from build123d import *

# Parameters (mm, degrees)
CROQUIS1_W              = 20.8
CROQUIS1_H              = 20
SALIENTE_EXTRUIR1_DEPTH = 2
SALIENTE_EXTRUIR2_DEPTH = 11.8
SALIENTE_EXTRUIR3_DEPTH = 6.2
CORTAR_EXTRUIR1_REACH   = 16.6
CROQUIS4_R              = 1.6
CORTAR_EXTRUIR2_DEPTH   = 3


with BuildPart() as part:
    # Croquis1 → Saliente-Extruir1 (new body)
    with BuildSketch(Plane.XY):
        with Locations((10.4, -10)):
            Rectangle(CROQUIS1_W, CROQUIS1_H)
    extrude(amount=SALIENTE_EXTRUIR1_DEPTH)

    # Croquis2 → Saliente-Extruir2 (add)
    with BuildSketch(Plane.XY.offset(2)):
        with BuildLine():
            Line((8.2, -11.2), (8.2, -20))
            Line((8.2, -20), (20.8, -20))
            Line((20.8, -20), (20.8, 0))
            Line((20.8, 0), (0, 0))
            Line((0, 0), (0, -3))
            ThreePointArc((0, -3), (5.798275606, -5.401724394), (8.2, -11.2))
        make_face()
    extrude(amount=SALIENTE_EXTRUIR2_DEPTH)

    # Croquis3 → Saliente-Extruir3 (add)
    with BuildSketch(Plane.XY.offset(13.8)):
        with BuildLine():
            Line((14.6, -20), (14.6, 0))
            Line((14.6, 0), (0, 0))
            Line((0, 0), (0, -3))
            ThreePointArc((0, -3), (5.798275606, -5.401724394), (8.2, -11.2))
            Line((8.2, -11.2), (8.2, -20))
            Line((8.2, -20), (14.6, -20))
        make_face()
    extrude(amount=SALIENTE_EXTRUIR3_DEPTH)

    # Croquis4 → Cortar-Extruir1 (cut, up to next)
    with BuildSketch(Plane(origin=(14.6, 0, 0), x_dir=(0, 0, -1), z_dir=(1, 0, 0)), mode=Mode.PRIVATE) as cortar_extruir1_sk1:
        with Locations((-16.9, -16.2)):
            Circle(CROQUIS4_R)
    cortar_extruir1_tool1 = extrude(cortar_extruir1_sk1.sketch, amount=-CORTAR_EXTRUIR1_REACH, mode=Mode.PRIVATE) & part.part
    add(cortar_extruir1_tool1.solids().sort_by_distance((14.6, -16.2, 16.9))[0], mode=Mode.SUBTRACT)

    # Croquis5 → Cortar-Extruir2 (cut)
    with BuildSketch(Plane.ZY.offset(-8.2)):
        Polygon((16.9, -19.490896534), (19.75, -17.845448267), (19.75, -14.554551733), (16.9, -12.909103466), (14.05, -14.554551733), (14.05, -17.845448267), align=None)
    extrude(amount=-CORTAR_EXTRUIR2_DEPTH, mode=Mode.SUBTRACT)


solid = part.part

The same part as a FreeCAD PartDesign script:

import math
import FreeCAD as App
import Part
import Sketcher
Q = App.Units.Quantity


def add_polygon(sketch, points):
    """Adds a closed chain of lines whose ends are joined by coincident constraints."""
    first, n = sketch.GeometryCount, len(points)
    for a, b in zip(points, points[1:] + points[:1]):
        sketch.addGeometry(Part.LineSegment(App.Vector(*a, 0), App.Vector(*b, 0)), False)
    for i in range(n):
        sketch.addConstraint(Sketcher.Constraint("Coincident", first + i, 2, first + (i + 1) % n, 1))

doc = App.newDocument("Part")
body = doc.addObject("PartDesign::Body", "Body")

# Sketch on XY plane
sketch1 = body.newObject("Sketcher::SketchObject", "Sketch")
sketch1.AttachmentSupport = (doc.getObject("XY_Plane"), [""])
sketch1.MapMode = "FlatFace"
add_polygon(sketch1, [(0, 0), (0, -20), (20.8, -20), (20.8, 0)])  # lines 0-3
sketch1.addConstraint([
    Sketcher.Constraint("Vertical", 0),
    Sketcher.Constraint("Horizontal", 1),
    Sketcher.Constraint("Vertical", 2),
    Sketcher.Constraint("Horizontal", 3),
    Sketcher.Constraint("Coincident", 3, 2, -1, 1),
    Sketcher.Constraint("DistanceY", 0, 2, 0, 1, Q("20 mm")),
    Sketcher.Constraint("DistanceX", 1, 1, 1, 2, Q("20.8 mm")),
])
pad1 = body.newObject("PartDesign::Pad", "Pad")
pad1.Profile = sketch1
pad1.Length = 2

# Sketch on XY plane
sketch2 = body.newObject("Sketcher::SketchObject", "Sketch001")
sketch2.AttachmentSupport = (doc.getObject("XY_Plane"), [""])
sketch2.MapMode = "FlatFace"
sketch2.AttachmentOffset = App.Placement(App.Vector(0, 0, 2), App.Rotation())
sketch2.addGeometry([
    Part.LineSegment(App.Vector(8.2, -11.2, 0), App.Vector(8.2, -20, 0)),  # 0
    Part.LineSegment(App.Vector(8.2, -20, 0), App.Vector(20.8, -20, 0)),  # 1
    Part.LineSegment(App.Vector(20.8, -20, 0), App.Vector(20.8, 0, 0)),  # 2
    Part.LineSegment(App.Vector(20.8, 0, 0), App.Vector(0, 0, 0)),  # 3
    Part.LineSegment(App.Vector(0, 0, 0), App.Vector(0, -3, 0)),  # 4
    Part.ArcOfCircle(Part.Circle(App.Vector(0, -11.2, 0), App.Vector(0, 0, 1), 8.2), math.radians(0), math.radians(90)),  # 5
], False)
sketch2.addConstraint([
    Sketcher.Constraint("Coincident", 0, 2, 1, 1),
    Sketcher.Constraint("Coincident", 1, 2, 2, 1),
    Sketcher.Constraint("Coincident", 2, 2, 3, 1),
    Sketcher.Constraint("Coincident", 3, 2, 4, 1),
    Sketcher.Constraint("Coincident", 4, 2, 5, 2),
    Sketcher.Constraint("Tangent", 5, 1, 0, 1),
    Sketcher.Constraint("Vertical", 0),
    Sketcher.Constraint("Horizontal", 1),
    Sketcher.Constraint("Vertical", 2),
    Sketcher.Constraint("Horizontal", 3),
    Sketcher.Constraint("Vertical", 4),
    Sketcher.Constraint("Coincident", 3, 2, -1, 1),
    Sketcher.Constraint("PointOnObject", 5, 3, -2),
    Sketcher.Constraint("Radius", 5, Q("8.2 mm")),
    Sketcher.Constraint("DistanceY", 2, 1, 2, 2, Q("20 mm")),
    Sketcher.Constraint("DistanceY", 4, 2, 4, 1, Q("3 mm")),
    Sketcher.Constraint("DistanceX", 1, 1, 1, 2, Q("12.6 mm")),
])
pad2 = body.newObject("PartDesign::Pad", "Pad001")
pad2.Profile = sketch2
pad2.Length = 11.8

# Sketch on XY plane
sketch3 = body.newObject("Sketcher::SketchObject", "Sketch002")
sketch3.AttachmentSupport = (doc.getObject("XY_Plane"), [""])
sketch3.MapMode = "FlatFace"
sketch3.AttachmentOffset = App.Placement(App.Vector(0, 0, 13.8), App.Rotation())
sketch3.addGeometry([
    Part.LineSegment(App.Vector(14.6, -20, 0), App.Vector(14.6, 0, 0)),  # 0
    Part.LineSegment(App.Vector(14.6, 0, 0), App.Vector(0, 0, 0)),  # 1
    Part.LineSegment(App.Vector(0, 0, 0), App.Vector(0, -3, 0)),  # 2
    Part.ArcOfCircle(Part.Circle(App.Vector(0, -11.2, 0), App.Vector(0, 0, 1), 8.2), math.radians(0), math.radians(90)),  # 3
    Part.LineSegment(App.Vector(8.2, -11.2, 0), App.Vector(8.2, -20, 0)),  # 4
    Part.LineSegment(App.Vector(8.2, -20, 0), App.Vector(14.6, -20, 0)),  # 5
], False)
sketch3.addConstraint([
    Sketcher.Constraint("Coincident", 0, 2, 1, 1),
    Sketcher.Constraint("Coincident", 1, 2, 2, 1),
    Sketcher.Constraint("Coincident", 2, 2, 3, 2),
    Sketcher.Constraint("Tangent", 3, 1, 4, 1),
    Sketcher.Constraint("Coincident", 4, 2, 5, 1),
    Sketcher.Constraint("Coincident", 5, 2, 0, 1),
    Sketcher.Constraint("Vertical", 0),
    Sketcher.Constraint("Horizontal", 1),
    Sketcher.Constraint("Vertical", 2),
    Sketcher.Constraint("Vertical", 4),
    Sketcher.Constraint("Horizontal", 5),
    Sketcher.Constraint("Coincident", 1, 2, -1, 1),
    Sketcher.Constraint("PointOnObject", 3, 3, -2),
    Sketcher.Constraint("Radius", 3, Q("8.2 mm")),
    Sketcher.Constraint("DistanceY", 0, 1, 0, 2, Q("20 mm")),
    Sketcher.Constraint("DistanceY", 2, 2, 2, 1, Q("3 mm")),
    Sketcher.Constraint("DistanceX", 1, 2, 1, 1, Q("14.6 mm")),
])
pad3 = body.newObject("PartDesign::Pad", "Pad002")
pad3.Profile = sketch3
pad3.Length = 6.2

# Sketch on YZ plane
sketch4 = body.newObject("Sketcher::SketchObject", "Sketch003")
sketch4.AttachmentSupport = (doc.getObject("YZ_Plane"), [""])
sketch4.MapMode = "FlatFace"
sketch4.AttachmentOffset = App.Placement(App.Vector(0, 0, 14.6), App.Rotation())
sketch4.addGeometry(Part.Circle(App.Vector(-16.2, 16.9, 0), App.Vector(0, 0, 1), 1.6), False)
sketch4.addConstraint([
    Sketcher.Constraint("Diameter", 0, Q("3.2 mm")),
    Sketcher.Constraint("DistanceX", 0, 3, -1, 1, Q("16.2 mm")),
    Sketcher.Constraint("DistanceY", -1, 1, 0, 3, Q("16.9 mm")),
])
pocket1 = body.newObject("PartDesign::Pocket", "Pocket")
pocket1.Profile = sketch4
pocket1.Type = "UpToFirst"

# Sketch on YZ plane
sketch5 = body.newObject("Sketcher::SketchObject", "Sketch004")
sketch5.AttachmentSupport = (doc.getObject("YZ_Plane"), [""])
sketch5.MapMode = "FlatFace"
sketch5.AttachmentOffset = App.Placement(App.Vector(0, 0, 8.2), App.Rotation())
add_polygon(sketch5, [(-19.490897, 16.9), (-17.845448, 19.75), (-14.554552, 19.75), (-12.909103, 16.9), (-14.554552, 14.05), (-17.845448, 14.05)])  # lines 0-5
sketch5.addConstraint([
    Sketcher.Constraint("Horizontal", 1),
    Sketcher.Constraint("Horizontal", 4),
    Sketcher.Constraint("Parallel", 0, 3),
    Sketcher.Constraint("Parallel", 2, 5),
    Sketcher.Constraint("Horizontal", 2, 2, 5, 2),
    Sketcher.Constraint("Vertical", 1, 2, 3, 2),
    Sketcher.Constraint("Vertical", 0, 2, 4, 2),
    Sketcher.Constraint("Angle", 0, Q("60 deg")),
    Sketcher.Constraint("DistanceY", -1, 1, 2, 2, Q("16.9 mm")),
    Sketcher.Constraint("DistanceY", 3, 2, 1, 2, Q("5.7 mm")),
    Sketcher.Constraint("DistanceX", 1, 1, 1, 2, Q("3.290897 mm")),
    Sketcher.Constraint("DistanceX", 0, 2, -1, 1, Q("17.845448 mm")),
])
pocket2 = body.newObject("PartDesign::Pocket", "Pocket001")
pocket2.Profile = sketch5
pocket2.Length = 3
pocket2.Reversed = True

doc.recompute()
